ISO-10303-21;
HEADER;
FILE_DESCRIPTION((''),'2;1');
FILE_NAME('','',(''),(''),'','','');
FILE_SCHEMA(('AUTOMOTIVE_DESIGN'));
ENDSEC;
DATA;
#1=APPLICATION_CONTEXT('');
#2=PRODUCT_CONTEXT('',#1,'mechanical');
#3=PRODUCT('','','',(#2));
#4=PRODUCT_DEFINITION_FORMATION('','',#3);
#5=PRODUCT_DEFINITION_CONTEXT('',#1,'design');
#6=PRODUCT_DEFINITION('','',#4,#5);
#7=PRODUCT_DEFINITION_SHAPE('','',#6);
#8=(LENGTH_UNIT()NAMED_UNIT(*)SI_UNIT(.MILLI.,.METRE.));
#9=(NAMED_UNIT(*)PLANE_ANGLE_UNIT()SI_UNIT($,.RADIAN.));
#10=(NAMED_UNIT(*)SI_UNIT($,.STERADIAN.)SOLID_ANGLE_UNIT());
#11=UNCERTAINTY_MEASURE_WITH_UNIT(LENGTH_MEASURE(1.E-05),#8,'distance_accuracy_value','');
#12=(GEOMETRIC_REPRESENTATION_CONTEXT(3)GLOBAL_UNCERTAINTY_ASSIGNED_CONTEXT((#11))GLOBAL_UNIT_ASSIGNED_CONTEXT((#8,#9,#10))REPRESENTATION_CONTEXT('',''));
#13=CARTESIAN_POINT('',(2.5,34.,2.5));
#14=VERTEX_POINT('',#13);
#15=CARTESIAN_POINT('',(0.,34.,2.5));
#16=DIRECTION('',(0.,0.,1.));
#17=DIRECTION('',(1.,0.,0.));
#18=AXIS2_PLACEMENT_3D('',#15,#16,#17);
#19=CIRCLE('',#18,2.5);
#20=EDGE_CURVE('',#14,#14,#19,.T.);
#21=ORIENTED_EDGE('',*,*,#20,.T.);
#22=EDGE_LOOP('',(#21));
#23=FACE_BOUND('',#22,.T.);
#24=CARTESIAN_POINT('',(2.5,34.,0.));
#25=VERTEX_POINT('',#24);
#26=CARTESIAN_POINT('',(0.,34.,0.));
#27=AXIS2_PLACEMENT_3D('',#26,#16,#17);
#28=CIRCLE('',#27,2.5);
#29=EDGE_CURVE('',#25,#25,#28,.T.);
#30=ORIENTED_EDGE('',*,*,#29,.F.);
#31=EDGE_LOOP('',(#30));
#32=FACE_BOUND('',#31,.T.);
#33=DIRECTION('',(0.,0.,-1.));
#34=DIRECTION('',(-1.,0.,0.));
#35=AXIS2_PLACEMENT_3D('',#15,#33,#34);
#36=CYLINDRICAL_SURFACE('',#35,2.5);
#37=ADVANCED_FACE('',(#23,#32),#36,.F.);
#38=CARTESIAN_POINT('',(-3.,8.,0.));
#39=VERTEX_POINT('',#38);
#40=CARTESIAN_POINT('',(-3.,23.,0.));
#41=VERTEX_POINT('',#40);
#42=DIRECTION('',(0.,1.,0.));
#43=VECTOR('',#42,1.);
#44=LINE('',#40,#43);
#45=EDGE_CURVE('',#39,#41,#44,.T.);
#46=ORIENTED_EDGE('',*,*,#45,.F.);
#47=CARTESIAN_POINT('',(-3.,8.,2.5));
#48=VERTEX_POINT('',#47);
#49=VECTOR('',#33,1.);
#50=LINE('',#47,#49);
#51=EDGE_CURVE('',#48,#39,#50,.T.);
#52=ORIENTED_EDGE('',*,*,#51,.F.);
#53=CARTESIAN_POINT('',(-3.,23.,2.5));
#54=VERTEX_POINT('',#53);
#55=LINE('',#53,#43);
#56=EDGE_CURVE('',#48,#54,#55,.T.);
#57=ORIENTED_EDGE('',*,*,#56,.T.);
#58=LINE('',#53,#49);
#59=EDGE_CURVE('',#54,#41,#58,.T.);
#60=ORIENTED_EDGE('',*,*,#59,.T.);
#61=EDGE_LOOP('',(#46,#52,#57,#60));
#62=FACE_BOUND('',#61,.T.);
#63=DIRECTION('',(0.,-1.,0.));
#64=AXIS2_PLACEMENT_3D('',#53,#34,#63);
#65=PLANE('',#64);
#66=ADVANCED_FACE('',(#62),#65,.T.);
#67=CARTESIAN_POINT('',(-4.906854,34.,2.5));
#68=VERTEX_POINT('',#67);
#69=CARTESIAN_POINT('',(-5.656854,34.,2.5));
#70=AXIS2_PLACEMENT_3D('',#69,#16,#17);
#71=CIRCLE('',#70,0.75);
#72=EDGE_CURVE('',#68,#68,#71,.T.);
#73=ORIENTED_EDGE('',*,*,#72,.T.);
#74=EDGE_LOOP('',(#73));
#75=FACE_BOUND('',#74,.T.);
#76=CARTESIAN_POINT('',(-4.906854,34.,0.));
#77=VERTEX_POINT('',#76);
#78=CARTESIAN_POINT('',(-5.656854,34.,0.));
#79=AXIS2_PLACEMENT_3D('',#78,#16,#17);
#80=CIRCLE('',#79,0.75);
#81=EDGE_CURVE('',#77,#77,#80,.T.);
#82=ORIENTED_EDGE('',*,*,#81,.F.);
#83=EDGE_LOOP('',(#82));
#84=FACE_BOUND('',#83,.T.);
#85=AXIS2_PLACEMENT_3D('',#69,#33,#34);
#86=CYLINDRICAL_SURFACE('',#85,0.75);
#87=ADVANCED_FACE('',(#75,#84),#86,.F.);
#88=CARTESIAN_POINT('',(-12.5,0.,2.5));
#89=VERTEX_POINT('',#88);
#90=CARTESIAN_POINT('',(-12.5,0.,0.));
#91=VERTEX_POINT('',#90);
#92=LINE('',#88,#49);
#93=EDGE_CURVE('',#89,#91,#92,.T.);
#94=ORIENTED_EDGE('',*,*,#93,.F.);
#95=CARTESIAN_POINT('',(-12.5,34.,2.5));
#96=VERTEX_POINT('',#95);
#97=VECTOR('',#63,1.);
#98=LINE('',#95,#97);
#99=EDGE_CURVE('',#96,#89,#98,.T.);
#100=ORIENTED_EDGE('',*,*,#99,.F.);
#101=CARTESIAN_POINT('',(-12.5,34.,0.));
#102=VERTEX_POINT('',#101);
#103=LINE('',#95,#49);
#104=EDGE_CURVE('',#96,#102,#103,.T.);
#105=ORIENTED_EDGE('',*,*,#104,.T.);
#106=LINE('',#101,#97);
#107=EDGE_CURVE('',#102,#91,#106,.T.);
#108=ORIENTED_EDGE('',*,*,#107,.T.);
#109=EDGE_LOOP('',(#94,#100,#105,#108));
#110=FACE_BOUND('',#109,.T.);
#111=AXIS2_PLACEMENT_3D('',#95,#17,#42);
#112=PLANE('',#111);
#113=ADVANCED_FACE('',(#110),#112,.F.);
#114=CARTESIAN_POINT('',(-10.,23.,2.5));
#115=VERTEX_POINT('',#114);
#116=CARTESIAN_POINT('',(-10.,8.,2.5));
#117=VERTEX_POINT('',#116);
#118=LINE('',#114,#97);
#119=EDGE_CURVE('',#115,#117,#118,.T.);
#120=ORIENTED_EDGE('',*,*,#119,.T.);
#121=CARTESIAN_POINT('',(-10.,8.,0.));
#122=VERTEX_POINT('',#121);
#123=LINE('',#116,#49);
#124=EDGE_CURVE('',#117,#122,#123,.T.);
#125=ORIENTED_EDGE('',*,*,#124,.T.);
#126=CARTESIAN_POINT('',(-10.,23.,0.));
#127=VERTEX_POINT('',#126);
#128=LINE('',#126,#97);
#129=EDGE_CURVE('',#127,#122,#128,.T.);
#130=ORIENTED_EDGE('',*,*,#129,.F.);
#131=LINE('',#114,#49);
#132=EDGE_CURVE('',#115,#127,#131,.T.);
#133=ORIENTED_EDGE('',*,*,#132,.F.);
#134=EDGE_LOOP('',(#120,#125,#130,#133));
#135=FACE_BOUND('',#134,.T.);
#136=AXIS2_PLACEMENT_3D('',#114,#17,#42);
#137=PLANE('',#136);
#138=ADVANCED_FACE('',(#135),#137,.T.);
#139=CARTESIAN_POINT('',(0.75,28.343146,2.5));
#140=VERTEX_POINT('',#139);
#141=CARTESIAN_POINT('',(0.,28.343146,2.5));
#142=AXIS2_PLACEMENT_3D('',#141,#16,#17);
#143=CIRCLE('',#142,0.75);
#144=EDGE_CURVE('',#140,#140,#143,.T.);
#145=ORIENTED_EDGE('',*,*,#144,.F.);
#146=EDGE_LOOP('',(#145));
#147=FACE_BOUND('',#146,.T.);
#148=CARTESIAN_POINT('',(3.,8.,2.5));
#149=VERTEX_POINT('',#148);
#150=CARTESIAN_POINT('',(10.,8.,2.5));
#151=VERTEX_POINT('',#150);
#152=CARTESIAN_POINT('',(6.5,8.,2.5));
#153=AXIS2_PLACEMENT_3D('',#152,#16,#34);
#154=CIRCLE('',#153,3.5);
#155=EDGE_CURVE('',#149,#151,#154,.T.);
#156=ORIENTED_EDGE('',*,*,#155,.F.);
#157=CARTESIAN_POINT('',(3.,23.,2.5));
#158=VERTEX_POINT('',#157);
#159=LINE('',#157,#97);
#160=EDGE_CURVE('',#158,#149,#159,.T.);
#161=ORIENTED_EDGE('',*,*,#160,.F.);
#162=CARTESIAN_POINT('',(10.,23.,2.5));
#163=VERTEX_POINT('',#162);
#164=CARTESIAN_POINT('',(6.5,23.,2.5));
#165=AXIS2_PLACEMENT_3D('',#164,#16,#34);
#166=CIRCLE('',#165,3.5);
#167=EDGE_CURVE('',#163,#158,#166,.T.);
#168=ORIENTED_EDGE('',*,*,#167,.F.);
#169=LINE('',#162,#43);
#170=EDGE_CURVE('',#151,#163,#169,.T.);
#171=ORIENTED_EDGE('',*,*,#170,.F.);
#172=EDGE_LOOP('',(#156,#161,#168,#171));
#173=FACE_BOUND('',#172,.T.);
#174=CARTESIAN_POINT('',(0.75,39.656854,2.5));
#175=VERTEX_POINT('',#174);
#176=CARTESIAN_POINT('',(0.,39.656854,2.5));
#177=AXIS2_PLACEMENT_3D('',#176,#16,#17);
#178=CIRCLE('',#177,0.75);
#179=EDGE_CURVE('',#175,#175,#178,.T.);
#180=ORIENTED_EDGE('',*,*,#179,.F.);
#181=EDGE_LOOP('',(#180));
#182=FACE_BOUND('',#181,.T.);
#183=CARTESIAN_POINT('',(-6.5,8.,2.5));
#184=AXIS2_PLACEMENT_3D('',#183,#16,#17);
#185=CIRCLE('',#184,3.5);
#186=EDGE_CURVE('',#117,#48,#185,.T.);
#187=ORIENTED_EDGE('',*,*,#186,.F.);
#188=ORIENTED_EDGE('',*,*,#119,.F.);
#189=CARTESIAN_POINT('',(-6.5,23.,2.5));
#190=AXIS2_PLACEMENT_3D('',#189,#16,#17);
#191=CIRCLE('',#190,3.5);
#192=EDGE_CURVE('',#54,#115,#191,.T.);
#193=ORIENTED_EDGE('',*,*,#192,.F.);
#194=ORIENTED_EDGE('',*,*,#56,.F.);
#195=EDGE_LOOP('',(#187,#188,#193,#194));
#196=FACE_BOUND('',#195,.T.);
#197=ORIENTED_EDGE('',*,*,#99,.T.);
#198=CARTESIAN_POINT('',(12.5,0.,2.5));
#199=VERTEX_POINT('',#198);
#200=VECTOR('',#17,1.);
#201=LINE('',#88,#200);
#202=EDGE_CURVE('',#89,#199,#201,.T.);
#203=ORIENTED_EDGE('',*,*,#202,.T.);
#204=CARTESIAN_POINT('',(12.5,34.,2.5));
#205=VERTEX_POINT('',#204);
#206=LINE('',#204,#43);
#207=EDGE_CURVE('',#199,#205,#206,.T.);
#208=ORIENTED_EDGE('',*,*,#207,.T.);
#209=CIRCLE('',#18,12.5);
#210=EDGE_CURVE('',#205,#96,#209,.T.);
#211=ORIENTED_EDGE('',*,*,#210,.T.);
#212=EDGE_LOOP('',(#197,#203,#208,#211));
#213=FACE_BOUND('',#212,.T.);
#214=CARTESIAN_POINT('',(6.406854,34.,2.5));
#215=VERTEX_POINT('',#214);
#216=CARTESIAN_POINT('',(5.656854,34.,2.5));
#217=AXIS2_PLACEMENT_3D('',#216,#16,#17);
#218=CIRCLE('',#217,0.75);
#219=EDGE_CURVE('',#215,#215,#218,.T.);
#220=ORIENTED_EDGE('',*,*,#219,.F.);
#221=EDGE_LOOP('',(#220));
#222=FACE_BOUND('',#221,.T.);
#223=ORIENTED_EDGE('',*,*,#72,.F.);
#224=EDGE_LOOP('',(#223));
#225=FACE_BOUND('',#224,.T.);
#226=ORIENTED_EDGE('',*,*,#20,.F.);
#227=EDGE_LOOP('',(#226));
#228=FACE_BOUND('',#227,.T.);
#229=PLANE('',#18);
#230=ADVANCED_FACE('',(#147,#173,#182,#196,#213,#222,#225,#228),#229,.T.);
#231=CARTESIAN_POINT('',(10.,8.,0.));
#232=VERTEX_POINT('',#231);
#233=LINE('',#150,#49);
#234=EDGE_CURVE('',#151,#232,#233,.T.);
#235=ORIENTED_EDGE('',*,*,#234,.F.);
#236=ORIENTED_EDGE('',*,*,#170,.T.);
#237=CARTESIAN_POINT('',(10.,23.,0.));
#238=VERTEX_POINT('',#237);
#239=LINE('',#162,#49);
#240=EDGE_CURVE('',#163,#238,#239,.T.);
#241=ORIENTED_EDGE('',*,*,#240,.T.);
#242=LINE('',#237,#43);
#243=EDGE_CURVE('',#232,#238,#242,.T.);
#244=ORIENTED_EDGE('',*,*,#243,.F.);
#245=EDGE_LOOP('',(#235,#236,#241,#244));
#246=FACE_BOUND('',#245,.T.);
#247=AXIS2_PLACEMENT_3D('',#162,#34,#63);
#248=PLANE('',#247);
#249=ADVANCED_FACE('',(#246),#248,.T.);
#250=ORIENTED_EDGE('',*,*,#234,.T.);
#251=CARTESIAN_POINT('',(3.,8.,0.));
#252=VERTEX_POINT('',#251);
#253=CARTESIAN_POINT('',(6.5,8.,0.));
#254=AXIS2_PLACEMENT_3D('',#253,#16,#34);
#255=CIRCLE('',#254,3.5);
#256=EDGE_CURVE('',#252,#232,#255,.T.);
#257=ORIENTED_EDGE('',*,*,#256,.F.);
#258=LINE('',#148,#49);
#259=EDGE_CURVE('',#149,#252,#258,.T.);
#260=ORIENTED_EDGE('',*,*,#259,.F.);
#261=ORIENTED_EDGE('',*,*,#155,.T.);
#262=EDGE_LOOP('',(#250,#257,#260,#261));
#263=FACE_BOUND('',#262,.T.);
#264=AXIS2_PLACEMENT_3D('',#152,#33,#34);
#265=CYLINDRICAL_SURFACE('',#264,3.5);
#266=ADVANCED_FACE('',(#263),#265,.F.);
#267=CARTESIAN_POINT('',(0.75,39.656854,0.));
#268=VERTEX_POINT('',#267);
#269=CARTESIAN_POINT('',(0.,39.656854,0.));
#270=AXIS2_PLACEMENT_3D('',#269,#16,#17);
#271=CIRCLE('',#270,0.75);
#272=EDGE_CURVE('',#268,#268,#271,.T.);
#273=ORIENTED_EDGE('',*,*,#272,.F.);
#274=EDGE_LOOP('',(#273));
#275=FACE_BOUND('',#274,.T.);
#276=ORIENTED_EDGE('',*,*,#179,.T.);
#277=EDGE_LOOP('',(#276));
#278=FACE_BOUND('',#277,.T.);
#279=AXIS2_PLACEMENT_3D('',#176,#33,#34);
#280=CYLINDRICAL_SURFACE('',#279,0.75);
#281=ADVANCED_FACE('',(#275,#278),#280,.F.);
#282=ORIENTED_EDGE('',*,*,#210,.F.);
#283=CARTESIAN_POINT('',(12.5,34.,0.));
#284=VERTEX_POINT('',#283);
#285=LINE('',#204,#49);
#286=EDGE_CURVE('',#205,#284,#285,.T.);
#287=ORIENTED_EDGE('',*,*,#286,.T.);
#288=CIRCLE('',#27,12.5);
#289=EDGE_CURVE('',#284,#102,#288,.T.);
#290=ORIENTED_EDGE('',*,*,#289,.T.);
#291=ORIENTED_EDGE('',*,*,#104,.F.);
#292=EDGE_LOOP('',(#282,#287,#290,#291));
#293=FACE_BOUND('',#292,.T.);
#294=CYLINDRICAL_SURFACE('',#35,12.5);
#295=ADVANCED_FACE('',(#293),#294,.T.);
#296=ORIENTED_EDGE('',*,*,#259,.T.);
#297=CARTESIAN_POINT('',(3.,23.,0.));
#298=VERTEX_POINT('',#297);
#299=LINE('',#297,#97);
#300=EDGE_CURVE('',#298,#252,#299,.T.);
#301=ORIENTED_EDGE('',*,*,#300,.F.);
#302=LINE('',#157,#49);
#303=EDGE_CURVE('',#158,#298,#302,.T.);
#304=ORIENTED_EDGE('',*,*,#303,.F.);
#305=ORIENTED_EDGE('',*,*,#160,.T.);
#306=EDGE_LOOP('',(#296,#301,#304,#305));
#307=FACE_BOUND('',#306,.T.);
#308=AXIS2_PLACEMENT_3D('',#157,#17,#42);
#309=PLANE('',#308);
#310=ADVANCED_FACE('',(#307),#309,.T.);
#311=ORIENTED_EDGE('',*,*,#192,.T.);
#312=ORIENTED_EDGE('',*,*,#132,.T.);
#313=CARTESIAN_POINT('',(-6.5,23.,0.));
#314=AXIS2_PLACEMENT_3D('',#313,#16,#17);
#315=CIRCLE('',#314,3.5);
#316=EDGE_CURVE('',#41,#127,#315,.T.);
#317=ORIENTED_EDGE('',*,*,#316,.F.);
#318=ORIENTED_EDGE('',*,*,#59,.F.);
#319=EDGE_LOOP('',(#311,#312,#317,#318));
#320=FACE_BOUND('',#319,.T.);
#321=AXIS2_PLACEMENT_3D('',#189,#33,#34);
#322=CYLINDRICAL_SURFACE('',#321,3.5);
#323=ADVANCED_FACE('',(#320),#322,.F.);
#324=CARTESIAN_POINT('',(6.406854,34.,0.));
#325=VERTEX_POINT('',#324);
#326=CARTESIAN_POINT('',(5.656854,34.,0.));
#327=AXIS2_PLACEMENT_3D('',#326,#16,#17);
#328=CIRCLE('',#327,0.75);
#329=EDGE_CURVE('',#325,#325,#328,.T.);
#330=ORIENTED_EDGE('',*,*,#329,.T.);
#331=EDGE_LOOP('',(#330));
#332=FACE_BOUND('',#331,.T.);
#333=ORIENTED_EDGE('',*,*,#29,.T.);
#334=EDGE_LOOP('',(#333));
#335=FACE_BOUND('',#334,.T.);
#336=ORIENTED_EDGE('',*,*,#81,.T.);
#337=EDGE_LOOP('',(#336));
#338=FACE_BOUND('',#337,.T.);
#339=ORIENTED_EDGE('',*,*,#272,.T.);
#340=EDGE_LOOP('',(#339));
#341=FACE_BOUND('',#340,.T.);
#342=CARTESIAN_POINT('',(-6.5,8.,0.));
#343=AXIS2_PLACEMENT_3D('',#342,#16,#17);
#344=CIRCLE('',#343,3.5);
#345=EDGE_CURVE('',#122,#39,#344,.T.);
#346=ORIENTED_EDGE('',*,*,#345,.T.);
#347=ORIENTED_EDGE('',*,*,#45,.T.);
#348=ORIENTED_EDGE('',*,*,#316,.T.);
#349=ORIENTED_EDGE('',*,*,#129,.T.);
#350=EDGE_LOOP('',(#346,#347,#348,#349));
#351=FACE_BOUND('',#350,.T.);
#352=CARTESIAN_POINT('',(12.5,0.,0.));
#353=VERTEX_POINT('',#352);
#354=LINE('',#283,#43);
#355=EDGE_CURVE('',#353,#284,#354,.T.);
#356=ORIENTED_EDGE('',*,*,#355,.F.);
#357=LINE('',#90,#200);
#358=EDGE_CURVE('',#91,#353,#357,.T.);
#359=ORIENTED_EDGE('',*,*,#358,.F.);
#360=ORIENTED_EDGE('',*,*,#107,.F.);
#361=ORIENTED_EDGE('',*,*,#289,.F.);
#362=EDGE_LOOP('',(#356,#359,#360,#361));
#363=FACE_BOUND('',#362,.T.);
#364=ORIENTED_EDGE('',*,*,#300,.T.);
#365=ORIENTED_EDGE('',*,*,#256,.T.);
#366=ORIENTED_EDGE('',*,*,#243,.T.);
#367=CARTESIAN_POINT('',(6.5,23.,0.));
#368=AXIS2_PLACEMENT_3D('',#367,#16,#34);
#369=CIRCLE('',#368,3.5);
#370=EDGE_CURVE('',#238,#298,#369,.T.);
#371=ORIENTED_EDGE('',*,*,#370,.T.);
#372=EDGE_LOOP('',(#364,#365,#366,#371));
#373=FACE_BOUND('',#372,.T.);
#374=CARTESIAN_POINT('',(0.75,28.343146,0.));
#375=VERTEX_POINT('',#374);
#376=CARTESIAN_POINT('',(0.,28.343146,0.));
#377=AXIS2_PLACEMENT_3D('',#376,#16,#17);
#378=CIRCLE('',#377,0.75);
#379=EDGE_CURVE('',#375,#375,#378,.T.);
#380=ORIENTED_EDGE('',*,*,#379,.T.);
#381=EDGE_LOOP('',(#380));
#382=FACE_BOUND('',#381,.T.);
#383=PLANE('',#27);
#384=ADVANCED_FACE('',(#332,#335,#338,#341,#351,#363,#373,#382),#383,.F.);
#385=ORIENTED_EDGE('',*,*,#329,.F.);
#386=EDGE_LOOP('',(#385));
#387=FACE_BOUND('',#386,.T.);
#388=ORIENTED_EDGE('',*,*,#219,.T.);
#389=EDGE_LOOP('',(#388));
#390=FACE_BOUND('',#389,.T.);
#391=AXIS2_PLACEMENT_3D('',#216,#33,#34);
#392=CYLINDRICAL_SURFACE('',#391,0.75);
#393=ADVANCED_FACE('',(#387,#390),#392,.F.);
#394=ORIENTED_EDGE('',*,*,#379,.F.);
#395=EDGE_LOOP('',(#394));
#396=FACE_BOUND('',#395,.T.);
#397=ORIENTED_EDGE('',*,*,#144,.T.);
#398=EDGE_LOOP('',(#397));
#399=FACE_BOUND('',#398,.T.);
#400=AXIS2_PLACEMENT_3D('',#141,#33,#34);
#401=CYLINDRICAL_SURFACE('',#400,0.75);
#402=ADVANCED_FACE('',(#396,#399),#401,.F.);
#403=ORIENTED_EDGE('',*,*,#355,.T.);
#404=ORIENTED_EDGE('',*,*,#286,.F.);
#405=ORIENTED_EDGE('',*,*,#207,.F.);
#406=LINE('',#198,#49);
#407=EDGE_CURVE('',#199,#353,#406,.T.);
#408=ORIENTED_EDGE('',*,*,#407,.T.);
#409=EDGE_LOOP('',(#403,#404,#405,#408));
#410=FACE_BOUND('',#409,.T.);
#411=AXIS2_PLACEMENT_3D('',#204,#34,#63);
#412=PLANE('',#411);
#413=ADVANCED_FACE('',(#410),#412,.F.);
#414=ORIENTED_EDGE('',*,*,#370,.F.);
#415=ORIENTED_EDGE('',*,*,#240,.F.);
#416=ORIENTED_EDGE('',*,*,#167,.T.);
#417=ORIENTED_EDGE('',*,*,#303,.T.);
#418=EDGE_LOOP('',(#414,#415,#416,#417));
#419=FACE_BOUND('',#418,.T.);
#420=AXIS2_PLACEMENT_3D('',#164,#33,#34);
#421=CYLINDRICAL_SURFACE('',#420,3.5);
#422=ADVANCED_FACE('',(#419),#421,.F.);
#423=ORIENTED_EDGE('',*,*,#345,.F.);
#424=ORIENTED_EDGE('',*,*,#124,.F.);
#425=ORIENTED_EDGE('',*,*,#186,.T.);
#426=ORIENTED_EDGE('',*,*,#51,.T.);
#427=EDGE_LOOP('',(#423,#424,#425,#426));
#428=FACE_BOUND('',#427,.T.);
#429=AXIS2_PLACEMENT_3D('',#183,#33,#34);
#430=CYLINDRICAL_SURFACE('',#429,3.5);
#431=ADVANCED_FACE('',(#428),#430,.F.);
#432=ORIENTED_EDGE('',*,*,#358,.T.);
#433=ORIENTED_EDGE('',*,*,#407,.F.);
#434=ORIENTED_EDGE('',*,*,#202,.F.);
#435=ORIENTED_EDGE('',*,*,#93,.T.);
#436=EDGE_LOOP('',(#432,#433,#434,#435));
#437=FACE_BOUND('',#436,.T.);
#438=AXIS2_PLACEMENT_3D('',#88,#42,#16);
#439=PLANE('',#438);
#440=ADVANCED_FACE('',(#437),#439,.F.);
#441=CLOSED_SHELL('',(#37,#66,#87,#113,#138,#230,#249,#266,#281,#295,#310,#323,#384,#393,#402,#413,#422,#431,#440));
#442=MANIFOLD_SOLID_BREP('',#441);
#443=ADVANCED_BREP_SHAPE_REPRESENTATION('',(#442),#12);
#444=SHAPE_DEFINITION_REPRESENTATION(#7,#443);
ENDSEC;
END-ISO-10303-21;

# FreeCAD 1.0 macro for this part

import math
import FreeCAD as App
import Part
import Sketcher
Q = App.Units.Quantity

doc = App.newDocument("Part")
params = doc.addObject("Spreadsheet::Sheet", "Params")
for row, (alias, value) in enumerate([
    ("sketch1_diameter", "5 mm"),
    ("sketch1_diameter2", "1.5 mm"),
    ("sketch1_radius", "12.5 mm"),
    ("sketch1_radius2", "3.5 mm"),
    ("sketch1_height", "34 mm"),
    ("pad1_length", "2.5 mm"),
], start=1):
    params.set(f"A{row}", alias)
    params.set(f"B{row}", "=" + value)
    params.setAlias(f"B{row}", alias)

body = doc.addObject("PartDesign::Body", "Body")

sketch1 = body.newObject("Sketcher::SketchObject", "Sketch")
sketch1.AttachmentSupport = (doc.getObject("XY_Plane"), [""])
sketch1.MapMode = "FlatFace"
sketch1.addGeometry([
    Part.LineSegment(App.Vector(-12.5, 34, 0), App.Vector(-12.5, 0, 0)),
    Part.LineSegment(App.Vector(-12.5, 0, 0), App.Vector(12.5, 0, 0)),
    Part.LineSegment(App.Vector(12.5, 0, 0), App.Vector(12.5, 34, 0)),
    Part.ArcOfCircle(Part.Circle(App.Vector(0, 34, 0), App.Vector(0, 0, 1), 12.5), math.radians(0), math.radians(180)),
    Part.ArcOfCircle(Part.Circle(App.Vector(-6.5, 23, 0), App.Vector(0, 0, 1), 3.5), math.radians(0), math.radians(180)),
    Part.LineSegment(App.Vector(-3, 23, 0), App.Vector(-3, 8, 0)),
    Part.ArcOfCircle(Part.Circle(App.Vector(-6.5, 8, 0), App.Vector(0, 0, 1), 3.5), math.radians(180), math.radians(360)),
    Part.LineSegment(App.Vector(-10, 8, 0), App.Vector(-10, 23, 0)),
    Part.LineSegment(App.Vector(3, 8, 0), App.Vector(3, 23, 0)),
    Part.ArcOfCircle(Part.Circle(App.Vector(6.5, 23, 0), App.Vector(0, 0, 1), 3.5), math.radians(0), math.radians(180)),
    Part.LineSegment(App.Vector(10, 23, 0), App.Vector(10, 8, 0)),
    Part.ArcOfCircle(Part.Circle(App.Vector(6.5, 8, 0), App.Vector(0, 0, 1), 3.5), math.radians(180), math.radians(360)),
    Part.Circle(App.Vector(-5.7, 34, 0), App.Vector(0, 0, 1), 0.8),
    Part.Circle(App.Vector(0, 28.3, 0), App.Vector(0, 0, 1), 0.8),
    Part.Circle(App.Vector(0, 34, 0), App.Vector(0, 0, 1), 2.5),
    Part.Circle(App.Vector(0, 39.7, 0), App.Vector(0, 0, 1), 0.8),
    Part.Circle(App.Vector(5.7, 34, 0), App.Vector(0, 0, 1), 0.8),
], False)
sketch1.addConstraint([
    Sketcher.Constraint("Coincident", 0, 2, 1, 1),
    Sketcher.Constraint("Coincident", 1, 2, 2, 1),
    Sketcher.Constraint("Tangent", 2, 2, 3, 1),
    Sketcher.Constraint("Tangent", 3, 2, 0, 1),
    Sketcher.Constraint("Tangent", 4, 1, 5, 1),
    Sketcher.Constraint("Tangent", 5, 2, 6, 2),
    Sketcher.Constraint("Tangent", 6, 1, 7, 1),
    Sketcher.Constraint("Tangent", 7, 2, 4, 2),
    Sketcher.Constraint("Tangent", 8, 2, 9, 2),
    Sketcher.Constraint("Tangent", 9, 1, 10, 1),
    Sketcher.Constraint("Tangent", 10, 2, 11, 2),
    Sketcher.Constraint("Tangent", 11, 1, 8, 1),
    Sketcher.Constraint("Vertical", 0),
    Sketcher.Constraint("Horizontal", 1),
    Sketcher.Constraint("Vertical", 2),
    Sketcher.Constraint("Vertical", 5),
    Sketcher.Constraint("Vertical", 7),
    Sketcher.Constraint("Vertical", 8),
    Sketcher.Constraint("Vertical", 10),
    Sketcher.Constraint("Coincident", 14, 3, 3, 3),
    Sketcher.Constraint("Equal", 6, 9),
    Sketcher.Constraint("Equal", 12, 13),
    Sketcher.Constraint("Equal", 13, 15),
    Sketcher.Constraint("Equal", 15, 16),
    Sketcher.Constraint("Symmetric", 0, 2, 1, 2, -1, 1),
    Sketcher.Constraint("Symmetric", 4, 3, 9, 3, -2),
    Sketcher.Constraint("Symmetric", 12, 3, 16, 3, -2),
    Sketcher.Constraint("PointOnObject", 13, 3, -2),
    Sketcher.Constraint("PointOnObject", 15, 3, -2),
    Sketcher.Constraint("Horizontal", 6, 3, 11, 3),
    Sketcher.Constraint("Horizontal", 3, 3, 12, 3),
    Sketcher.Constraint("Diameter", 14, Q("5 mm")),
    Sketcher.Constraint("Diameter", 12, Q("1.5 mm")),
    Sketcher.Constraint("Radius", 3, Q("12.5 mm")),
    Sketcher.Constraint("Radius", 4, Q("3.5 mm")),
    Sketcher.Constraint("DistanceY", 0, 2, 0, 1, Q("34 mm")),
    Sketcher.Constraint("DistanceY", 5, 2, 5, 1, Q("15 mm")),
    Sketcher.Constraint("DistanceY", -1, 1, 4, 3, Q("23 mm")),
    Sketcher.Constraint("DistanceX", 4, 1, -1, 1, Q("3 mm")),
    Sketcher.Constraint("DistanceY", 13, 3, 15, 3, Q("11.313708 mm")),
    Sketcher.Constraint("DistanceX", 12, 3, -1, 1, Q("5.656854 mm")),
    Sketcher.Constraint("DistanceY", -1, 1, 13, 3, Q("28.343146 mm")),
])
sketch1.setExpression("Constraints[31]", "Params.sketch1_diameter")
sketch1.setExpression("Constraints[32]", "Params.sketch1_diameter2")
sketch1.setExpression("Constraints[33]", "Params.sketch1_radius")
sketch1.setExpression("Constraints[34]", "Params.sketch1_radius2")
sketch1.setExpression("Constraints[35]", "Params.sketch1_height")
pad1 = body.newObject("PartDesign::Pad", "Pad")
pad1.Profile = sketch1
pad1.setExpression("Length", "Params.pad1_length")

doc.recompute()
